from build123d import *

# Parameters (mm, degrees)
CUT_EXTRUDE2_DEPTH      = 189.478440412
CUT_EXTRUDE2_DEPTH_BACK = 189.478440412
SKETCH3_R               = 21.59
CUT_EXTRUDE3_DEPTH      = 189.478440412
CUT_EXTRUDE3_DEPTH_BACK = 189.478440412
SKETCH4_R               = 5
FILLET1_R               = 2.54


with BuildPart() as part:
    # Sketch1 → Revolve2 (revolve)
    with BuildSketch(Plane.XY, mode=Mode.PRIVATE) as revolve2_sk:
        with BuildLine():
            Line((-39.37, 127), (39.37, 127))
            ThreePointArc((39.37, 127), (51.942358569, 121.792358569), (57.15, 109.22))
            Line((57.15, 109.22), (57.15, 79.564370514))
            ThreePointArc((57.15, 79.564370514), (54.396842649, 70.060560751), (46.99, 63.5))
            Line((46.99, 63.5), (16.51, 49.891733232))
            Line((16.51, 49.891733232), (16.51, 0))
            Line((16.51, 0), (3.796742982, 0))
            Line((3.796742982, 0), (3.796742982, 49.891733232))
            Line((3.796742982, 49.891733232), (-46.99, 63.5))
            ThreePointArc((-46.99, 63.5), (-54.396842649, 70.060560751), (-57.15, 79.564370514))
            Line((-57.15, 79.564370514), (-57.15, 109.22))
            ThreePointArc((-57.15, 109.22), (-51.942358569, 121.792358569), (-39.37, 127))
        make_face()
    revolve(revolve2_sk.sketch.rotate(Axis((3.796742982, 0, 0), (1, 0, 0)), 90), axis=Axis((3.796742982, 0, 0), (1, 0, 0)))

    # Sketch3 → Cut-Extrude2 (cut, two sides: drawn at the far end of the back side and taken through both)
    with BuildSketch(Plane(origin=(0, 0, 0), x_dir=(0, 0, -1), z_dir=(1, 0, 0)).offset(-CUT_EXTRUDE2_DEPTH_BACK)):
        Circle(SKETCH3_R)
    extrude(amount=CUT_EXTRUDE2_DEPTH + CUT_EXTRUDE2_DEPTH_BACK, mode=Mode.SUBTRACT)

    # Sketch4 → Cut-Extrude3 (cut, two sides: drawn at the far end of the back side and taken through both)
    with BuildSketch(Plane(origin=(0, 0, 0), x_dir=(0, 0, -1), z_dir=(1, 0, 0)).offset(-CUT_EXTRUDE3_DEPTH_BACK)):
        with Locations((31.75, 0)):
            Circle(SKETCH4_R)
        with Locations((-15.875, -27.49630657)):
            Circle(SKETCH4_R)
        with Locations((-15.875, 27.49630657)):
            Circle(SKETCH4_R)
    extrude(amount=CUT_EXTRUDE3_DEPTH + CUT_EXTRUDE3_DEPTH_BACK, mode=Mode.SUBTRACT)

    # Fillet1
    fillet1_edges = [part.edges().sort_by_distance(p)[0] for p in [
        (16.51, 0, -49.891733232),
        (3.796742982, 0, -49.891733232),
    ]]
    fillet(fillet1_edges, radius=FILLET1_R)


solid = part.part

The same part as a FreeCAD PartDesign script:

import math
import FreeCAD as App
import Part
import Sketcher

V = App.Vector
Q = App.Units.Quantity


def edges_at(feature, points):
    """Names of the edges that pass closest to the given points."""
    edges = feature.Shape.Edges
    near = lambda p: min(range(len(edges)), key=lambda i: edges[i].distToShape(Part.Vertex(*p))[0])
    return sorted({f"Edge{near(p) + 1}" for p in points})

doc = App.newDocument("Part")
body = doc.addObject("PartDesign::Body", "Body")

# Sketch on XY plane
sketch1 = body.newObject("Sketcher::SketchObject", "Sketch")
sketch1.AttachmentSupport = (doc.getObject("XY_Plane"), [""])
sketch1.MapMode = "FlatFace"
sketch1.addGeometry([
    Part.LineSegment(V(39, 127, 0), V(-39, 127, 0)),  # 0
    Part.ArcOfCircle(Part.Circle(V(-39, 109, 0), V(0, 0, 1), 18), math.radians(90), math.radians(180)),  # 1
    Part.LineSegment(V(-57, 109, 0), V(-57, 80, 0)),  # 2
    Part.ArcOfCircle(Part.Circle(V(-39, 80, 0), V(0, 0, 1), 18), math.radians(180), math.radians(245)),  # 3
    Part.LineSegment(V(-47, 64, 0), V(4, 50, 0)),  # 4
    Part.LineSegment(V(4, 50, 0), V(4, 0, 0)),  # 5
    Part.LineSegment(V(4, 0, 0), V(17, 0, 0)),  # 6
    Part.LineSegment(V(17, 0, 0), V(17, 50, 0)),  # 7
    Part.LineSegment(V(17, 50, 0), V(47, 64, 0)),  # 8
    Part.ArcOfCircle(Part.Circle(V(39, 80, 0), V(0, 0, 1), 18), math.radians(-65), math.radians(0)),  # 9
    Part.LineSegment(V(57, 80, 0), V(57, 109, 0)),  # 10
    Part.ArcOfCircle(Part.Circle(V(39, 109, 0), V(0, 0, 1), 18), math.radians(0), math.radians(90)),  # 11
], False)
sketch1.addConstraint([
    Sketcher.Constraint("Tangent", 0, 2, 1, 1),
    Sketcher.Constraint("Tangent", 1, 2, 2, 1),
    Sketcher.Constraint("Tangent", 2, 2, 3, 1),
    Sketcher.Constraint("Coincident", 3, 2, 4, 1),
    Sketcher.Constraint("Coincident", 4, 2, 5, 1),
    Sketcher.Constraint("Coincident", 5, 2, 6, 1),
    Sketcher.Constraint("Coincident", 6, 2, 7, 1),
    Sketcher.Constraint("Coincident", 7, 2, 8, 1),
    Sketcher.Constraint("Coincident", 8, 2, 9, 1),
    Sketcher.Constraint("Tangent", 9, 2, 10, 1),
    Sketcher.Constraint("Tangent", 10, 2, 11, 1),
    Sketcher.Constraint("Tangent", 11, 2, 0, 1),
    Sketcher.Constraint("Horizontal", 0),
    Sketcher.Constraint("Vertical", 2),
    Sketcher.Constraint("Vertical", 5),
    Sketcher.Constraint("Horizontal", 6),
    Sketcher.Constraint("Vertical", 7),
    Sketcher.Constraint("Vertical", 10),
    Sketcher.Constraint("Equal", 1, 3),
    Sketcher.Constraint("Equal", 3, 9),
    Sketcher.Constraint("Equal", 9, 11),
    Sketcher.Constraint("Symmetric", 3, 3, 9, 3, -2),
    Sketcher.Constraint("PointOnObject", 5, 2, -1),
    Sketcher.Constraint("Horizontal", 4, 2, 7, 2),
    Sketcher.Constraint("Horizontal", 3, 2, 8, 2),
    Sketcher.Constraint("Radius", 1, Q("0.7 in")),
    Sketcher.Constraint("DistanceX", 0, 2, 0, 1, Q("3.1 in")),
    Sketcher.Constraint("DistanceY", -1, 1, 0, 2, Q("5 in")),
    Sketcher.Constraint("Angle", 4, Q("-15 deg")),
    Sketcher.Constraint("DistanceY", -1, 1, 3, 2, Q("2.5 in")),
    Sketcher.Constraint("DistanceX", 3, 2, 3, 3, Q("0.3 in")),
    Sketcher.Constraint("DistanceX", 6, 2, 9, 3, Q("0.9 in")),
    Sketcher.Constraint("DistanceX", 6, 1, 6, 2, Q("12.713257 mm")),
])
revolution = body.newObject("PartDesign::Revolution", "Revolution")
revolution.Profile = sketch1
revolution.ReferenceAxis = (sketch1, ["H_Axis"])
revolution.Angle = 360

# Sketch on YZ plane
sketch2 = body.newObject("Sketcher::SketchObject", "Sketch001")
sketch2.AttachmentSupport = (doc.getObject("YZ_Plane"), [""])
sketch2.MapMode = "FlatFace"
sketch2.addGeometry(Part.Circle(V(0, 0, 0), V(0, 0, 1), 22), False)
sketch2.addConstraint([
    Sketcher.Constraint("Coincident", 0, 3, -1, 1),
    Sketcher.Constraint("Diameter", 0, Q("1.7 in")),
])
pocket1 = body.newObject("PartDesign::Pocket", "Pocket")
pocket1.Profile = sketch2
pocket1.Type = "ThroughAll"
pocket1.Midplane = True

# Sketch on YZ plane
sketch3 = body.newObject("Sketcher::SketchObject", "Sketch002")
sketch3.AttachmentSupport = (doc.getObject("YZ_Plane"), [""])
sketch3.MapMode = "FlatFace"
sketch3.addGeometry([
    Part.Circle(V(0, -32, 0), V(0, 0, 1), 5),
    Part.Circle(V(-27, 16, 0), V(0, 0, 1), 5),
    Part.Circle(V(27, 16, 0), V(0, 0, 1), 5),
], False)
sketch3.addConstraint([
    Sketcher.Constraint("Equal", 0, 1),
    Sketcher.Constraint("Equal", 1, 2),
    Sketcher.Constraint("Symmetric", 1, 3, 2, 3, -2),
    Sketcher.Constraint("PointOnObject", 0, 3, -2),
    Sketcher.Constraint("Diameter", 0, Q("10 mm")),
    Sketcher.Constraint("DistanceY", 0, 3, -1, 1, Q("1.25 in")),
    Sketcher.Constraint("DistanceY", -1, 1, 1, 3, Q("0.625 in")),
    Sketcher.Constraint("DistanceX", 1, 3, -1, 1, Q("27.496307 mm")),
])
pocket2 = body.newObject("PartDesign::Pocket", "Pocket001")
pocket2.Profile = sketch3
pocket2.Type = "ThroughAll"
pocket2.Midplane = True
doc.recompute()

fillet = body.newObject("PartDesign::Fillet", "Fillet")
fillet.Base = (pocket2, edges_at(pocket2, [(16.51, 0, -49.892), (3.797, 0, -49.892)]))
fillet.Radius = Q("0.1 in")

doc.recompute()
